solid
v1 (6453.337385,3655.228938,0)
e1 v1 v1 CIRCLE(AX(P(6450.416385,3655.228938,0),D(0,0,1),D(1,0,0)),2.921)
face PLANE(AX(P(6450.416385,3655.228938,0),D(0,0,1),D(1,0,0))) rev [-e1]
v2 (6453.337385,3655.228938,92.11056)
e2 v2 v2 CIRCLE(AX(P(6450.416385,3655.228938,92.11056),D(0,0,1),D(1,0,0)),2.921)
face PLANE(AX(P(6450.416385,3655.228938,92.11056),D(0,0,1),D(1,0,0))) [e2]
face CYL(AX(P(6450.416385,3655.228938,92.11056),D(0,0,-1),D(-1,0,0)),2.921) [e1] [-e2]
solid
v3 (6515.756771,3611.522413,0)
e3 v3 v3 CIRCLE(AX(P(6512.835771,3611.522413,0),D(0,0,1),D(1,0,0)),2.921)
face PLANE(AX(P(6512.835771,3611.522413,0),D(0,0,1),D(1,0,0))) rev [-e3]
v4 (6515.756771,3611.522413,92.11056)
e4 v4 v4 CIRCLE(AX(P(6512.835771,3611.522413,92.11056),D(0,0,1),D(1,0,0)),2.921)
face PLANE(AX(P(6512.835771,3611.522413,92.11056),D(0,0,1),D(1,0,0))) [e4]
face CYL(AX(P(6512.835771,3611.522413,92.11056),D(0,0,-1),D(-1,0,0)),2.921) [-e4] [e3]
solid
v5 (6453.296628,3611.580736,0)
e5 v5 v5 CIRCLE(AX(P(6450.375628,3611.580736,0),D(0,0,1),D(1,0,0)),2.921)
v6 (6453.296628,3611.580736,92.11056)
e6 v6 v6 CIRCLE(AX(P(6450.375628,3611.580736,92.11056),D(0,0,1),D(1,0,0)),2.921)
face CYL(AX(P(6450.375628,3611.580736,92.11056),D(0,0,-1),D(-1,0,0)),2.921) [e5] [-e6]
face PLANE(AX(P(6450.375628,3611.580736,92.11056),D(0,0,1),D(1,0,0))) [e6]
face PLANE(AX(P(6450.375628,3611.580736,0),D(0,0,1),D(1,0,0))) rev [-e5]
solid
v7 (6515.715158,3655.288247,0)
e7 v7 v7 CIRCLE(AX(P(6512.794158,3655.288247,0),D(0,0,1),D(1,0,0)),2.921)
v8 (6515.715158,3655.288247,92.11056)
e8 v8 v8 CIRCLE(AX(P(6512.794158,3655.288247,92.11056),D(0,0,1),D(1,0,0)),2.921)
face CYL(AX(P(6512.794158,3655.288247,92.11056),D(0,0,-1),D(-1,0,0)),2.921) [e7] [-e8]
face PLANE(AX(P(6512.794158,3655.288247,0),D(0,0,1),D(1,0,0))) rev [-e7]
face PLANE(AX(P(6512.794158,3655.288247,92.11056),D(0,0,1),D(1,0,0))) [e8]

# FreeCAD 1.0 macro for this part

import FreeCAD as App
import Part
import Sketcher

V = App.Vector
Q = App.Units.Quantity

doc = App.newDocument("Part")
params = doc.addObject("Spreadsheet::Sheet", "Params")
for row, (alias, value) in enumerate([
    ("sketch1_diameter", "0.23 in"),
    ("pad1_length", "3.6264 in"),
    ("sketch2_diameter", "0.23 in"),
    ("pad2_length", "3.6264 in"),
    ("sketch3_diameter", "0.23 in"),
    ("pad3_length", "3.6264 in"),
    ("sketch4_diameter", "0.23 in"),
    ("pad4_length", "3.6264 in"),
], start=1):
    params.set(f"A{row}", alias)
    params.set(f"B{row}", "=" + value)
    params.setAlias(f"B{row}", alias)

body = doc.addObject("PartDesign::Body", "Body")

sketch1 = body.newObject("Sketcher::SketchObject", "Sketch")
sketch1.AttachmentSupport = (doc.getObject("XY_Plane"), [""])
sketch1.MapMode = "FlatFace"
sketch1.addGeometry(Part.Circle(V(6450.375628, 3611.580736, 0), V(0, 0, 1), 2.921), False)
sketch1.addConstraint(Sketcher.Constraint("Diameter", 0, Q("0.23 in")))
sketch1.addConstraint(Sketcher.Constraint("DistanceX", -1, 1, 0, 3, 6450.375628))
sketch1.addConstraint(Sketcher.Constraint("DistanceY", -1, 1, 0, 3, 3611.580736))
sketch1.setExpression("Constraints[0]", "Params.sketch1_diameter")
pad1 = body.newObject("PartDesign::Pad", "Pad")
pad1.Profile = sketch1
pad1.setExpression("Length", "Params.pad1_length")
body2 = doc.addObject("PartDesign::Body", "Body001")

sketch2 = body2.newObject("Sketcher::SketchObject", "Sketch001")
sketch2.AttachmentSupport = (doc.getObject("XY_Plane001"), [""])
sketch2.MapMode = "FlatFace"
sketch2.addGeometry(Part.Circle(V(6512.835771, 3611.522413, 0), V(0, 0, 1), 2.921), False)
sketch2.addConstraint(Sketcher.Constraint("Diameter", 0, Q("0.23 in")))
sketch2.addConstraint(Sketcher.Constraint("DistanceX", -1, 1, 0, 3, 6512.835771))
sketch2.addConstraint(Sketcher.Constraint("DistanceY", -1, 1, 0, 3, 3611.522413))
sketch2.setExpression("Constraints[0]", "Params.sketch2_diameter")
pad2 = body2.newObject("PartDesign::Pad", "Pad001")
pad2.Profile = sketch2
pad2.setExpression("Length", "Params.pad2_length")
body3 = doc.addObject("PartDesign::Body", "Body002")

sketch3 = body3.newObject("Sketcher::SketchObject", "Sketch002")
sketch3.AttachmentSupport = (doc.getObject("XY_Plane002"), [""])
sketch3.MapMode = "FlatFace"
sketch3.addGeometry(Part.Circle(V(6512.794158, 3655.288248, 0), V(0, 0, 1), 2.921), False)
sketch3.addConstraint(Sketcher.Constraint("Diameter", 0, Q("0.23 in")))
sketch3.addConstraint(Sketcher.Constraint("DistanceX", -1, 1, 0, 3, 6512.794158))
sketch3.addConstraint(Sketcher.Constraint("DistanceY", -1, 1, 0, 3, 3655.288248))
sketch3.setExpression("Constraints[0]", "Params.sketch3_diameter")
pad3 = body3.newObject("PartDesign::Pad", "Pad002")
pad3.Profile = sketch3
pad3.setExpression("Length", "Params.pad3_length")
body4 = doc.addObject("PartDesign::Body", "Body003")

sketch4 = body4.newObject("Sketcher::SketchObject", "Sketch003")
sketch4.AttachmentSupport = (doc.getObject("XY_Plane003"), [""])
sketch4.MapMode = "FlatFace"
sketch4.addGeometry(Part.Circle(V(6450.416385, 3655.228938, 0), V(0, 0, 1), 2.921), False)
sketch4.addConstraint(Sketcher.Constraint("Diameter", 0, Q("0.23 in")))
sketch4.addConstraint(Sketcher.Constraint("DistanceX", -1, 1, 0, 3, 6450.416385))
sketch4.addConstraint(Sketcher.Constraint("DistanceY", -1, 1, 0, 3, 3655.228938))
sketch4.setExpression("Constraints[0]", "Params.sketch4_diameter")
pad4 = body4.newObject("PartDesign::Pad", "Pad003")
pad4.Profile = sketch4
pad4.setExpression("Length", "Params.pad4_length")

doc.recompute()
